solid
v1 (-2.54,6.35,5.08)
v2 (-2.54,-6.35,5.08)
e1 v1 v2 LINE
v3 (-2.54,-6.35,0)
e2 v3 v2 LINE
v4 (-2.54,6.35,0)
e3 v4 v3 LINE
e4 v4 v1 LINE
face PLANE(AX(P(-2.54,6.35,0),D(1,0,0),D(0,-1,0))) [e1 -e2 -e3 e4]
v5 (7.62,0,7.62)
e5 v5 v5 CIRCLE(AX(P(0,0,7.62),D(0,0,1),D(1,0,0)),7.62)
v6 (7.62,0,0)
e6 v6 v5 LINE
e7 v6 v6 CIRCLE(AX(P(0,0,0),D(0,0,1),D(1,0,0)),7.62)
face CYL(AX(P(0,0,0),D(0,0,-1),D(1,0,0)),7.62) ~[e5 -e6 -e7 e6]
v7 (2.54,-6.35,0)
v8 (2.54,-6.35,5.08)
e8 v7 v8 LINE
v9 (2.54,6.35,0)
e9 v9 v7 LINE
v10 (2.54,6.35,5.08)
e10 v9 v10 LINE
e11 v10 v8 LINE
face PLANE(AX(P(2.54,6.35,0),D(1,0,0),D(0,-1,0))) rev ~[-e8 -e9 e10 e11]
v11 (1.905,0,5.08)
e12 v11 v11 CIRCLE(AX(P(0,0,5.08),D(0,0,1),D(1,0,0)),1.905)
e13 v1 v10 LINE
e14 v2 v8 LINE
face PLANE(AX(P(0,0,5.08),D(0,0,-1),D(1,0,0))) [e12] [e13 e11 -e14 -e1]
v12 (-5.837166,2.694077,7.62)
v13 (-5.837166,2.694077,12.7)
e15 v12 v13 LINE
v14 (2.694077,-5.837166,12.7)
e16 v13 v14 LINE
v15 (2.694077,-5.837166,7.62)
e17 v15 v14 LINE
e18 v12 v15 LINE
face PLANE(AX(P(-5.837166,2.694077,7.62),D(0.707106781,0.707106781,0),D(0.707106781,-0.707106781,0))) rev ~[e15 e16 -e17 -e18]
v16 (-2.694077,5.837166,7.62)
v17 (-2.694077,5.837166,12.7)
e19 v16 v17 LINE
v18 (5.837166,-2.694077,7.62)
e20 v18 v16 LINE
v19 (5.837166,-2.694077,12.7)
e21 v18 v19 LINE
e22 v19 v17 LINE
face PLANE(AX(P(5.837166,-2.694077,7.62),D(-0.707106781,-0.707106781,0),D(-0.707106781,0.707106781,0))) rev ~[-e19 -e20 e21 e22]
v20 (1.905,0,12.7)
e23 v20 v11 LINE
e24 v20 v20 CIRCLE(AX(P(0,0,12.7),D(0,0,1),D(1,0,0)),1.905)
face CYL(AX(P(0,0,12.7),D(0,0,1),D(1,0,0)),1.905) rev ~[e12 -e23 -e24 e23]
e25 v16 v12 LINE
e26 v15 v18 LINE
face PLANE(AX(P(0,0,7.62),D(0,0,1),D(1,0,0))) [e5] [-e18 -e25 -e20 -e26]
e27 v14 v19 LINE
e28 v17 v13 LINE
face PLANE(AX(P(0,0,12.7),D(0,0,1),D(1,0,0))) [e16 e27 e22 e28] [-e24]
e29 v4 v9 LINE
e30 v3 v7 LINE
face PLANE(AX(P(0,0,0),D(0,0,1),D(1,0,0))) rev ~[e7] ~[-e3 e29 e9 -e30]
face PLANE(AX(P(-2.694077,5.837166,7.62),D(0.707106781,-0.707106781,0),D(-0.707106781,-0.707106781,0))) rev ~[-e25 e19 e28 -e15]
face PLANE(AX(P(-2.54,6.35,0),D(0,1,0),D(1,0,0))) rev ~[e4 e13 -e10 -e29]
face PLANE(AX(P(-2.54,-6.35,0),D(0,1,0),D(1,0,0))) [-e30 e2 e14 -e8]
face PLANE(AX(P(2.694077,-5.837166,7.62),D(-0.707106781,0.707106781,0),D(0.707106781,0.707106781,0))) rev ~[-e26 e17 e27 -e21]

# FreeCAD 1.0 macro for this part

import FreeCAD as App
import Part
import Sketcher

V = App.Vector
Q = App.Units.Quantity


def add_polygon(sketch, points):
    """Adds a closed chain of lines whose ends are joined by coincident constraints."""
    first, n = sketch.GeometryCount, len(points)
    for a, b in zip(points, points[1:] + points[:1]):
        sketch.addGeometry(Part.LineSegment(App.Vector(*a, 0), App.Vector(*b, 0)), False)
    for i in range(n):
        sketch.addConstraint(Sketcher.Constraint("Coincident", first + i, 2, first + (i + 1) % n, 1))

doc = App.newDocument("Part")
body = doc.addObject("PartDesign::Body", "Body")

sketch1 = body.newObject("Sketcher::SketchObject", "Sketch")
sketch1.AttachmentSupport = (doc.getObject("XY_Plane"), [""])
sketch1.MapMode = "FlatFace"
sketch1.addGeometry(Part.Circle(V(0, 0, 0), V(0, 0, 1), 8), False)
sketch1.addConstraint([
    Sketcher.Constraint("Coincident", 0, 3, -1, 1),
    Sketcher.Constraint("Diameter", 0, Q("0.6 in")),
])
pad1 = body.newObject("PartDesign::Pad", "Pad")
pad1.Profile = sketch1
pad1.Length = Q("0.3 in")

sketch2 = body.newObject("Sketcher::SketchObject", "Sketch001")
sketch2.AttachmentSupport = (doc.getObject("XY_Plane"), [""])
sketch2.MapMode = "FlatFace"
add_polygon(sketch2, [(-3, -6), (-3, 6), (3, 6), (3, -6)])
sketch2.addConstraint([
    Sketcher.Constraint("Vertical", 0),
    Sketcher.Constraint("Horizontal", 1),
    Sketcher.Constraint("Vertical", 2),
    Sketcher.Constraint("Horizontal", 3),
    Sketcher.Constraint("Symmetric", 0, 2, 2, 2, -1, 1),
    Sketcher.Constraint("DistanceX", 1, 1, 1, 2, Q("0.2 in")),
    Sketcher.Constraint("DistanceY", 0, 1, 0, 2, Q("0.5 in")),
])
pocket1 = body.newObject("PartDesign::Pocket", "Pocket")
pocket1.Profile = sketch2
pocket1.Length = Q("0.2 in")
pocket1.Reversed = True

sketch3 = body.newObject("Sketcher::SketchObject", "Sketch002")
sketch3.AttachmentSupport = (doc.getObject("XY_Plane"), [""])
sketch3.MapMode = "FlatFace"
sketch3.AttachmentOffset = App.Placement(V(0, 0, 0.3 * 25.4), App.Rotation())
add_polygon(sketch3, [(-2.7, 5.8), (-5.8, 2.7), (2.7, -5.8), (5.8, -2.7)])
sketch3.addConstraint([
    Sketcher.Constraint("Symmetric", 0, 2, 2, 2, -1, 1),
    Sketcher.Constraint("Symmetric", 1, 2, 3, 2, -1, 1),
    Sketcher.Constraint("Perpendicular", 0, 1),
    Sketcher.Constraint("Angle", 0, Q("-135 deg")),
    Sketcher.Constraint("Distance", 0, Q("0.175 in")),
    Sketcher.Constraint("Distance", 1, Q("0.475 in")),
])
pad2 = body.newObject("PartDesign::Pad", "Pad001")
pad2.Profile = sketch3
pad2.Length = Q("0.2 in")

sketch4 = body.newObject("Sketcher::SketchObject", "Sketch003")
sketch4.AttachmentSupport = (doc.getObject("XY_Plane"), [""])
sketch4.MapMode = "FlatFace"
sketch4.AttachmentOffset = App.Placement(V(0, 0, 0.5 * 25.4), App.Rotation())
sketch4.addGeometry(Part.Circle(V(0, 0, 0), V(0, 0, 1), 1.9), False)
sketch4.addConstraint([
    Sketcher.Constraint("Coincident", 0, 3, -1, 1),
    Sketcher.Constraint("Diameter", 0, Q("0.15 in")),
])
pocket2 = body.newObject("PartDesign::Pocket", "Pocket001")
pocket2.Profile = sketch4
pocket2.Type = "ThroughAll"

doc.recompute()
